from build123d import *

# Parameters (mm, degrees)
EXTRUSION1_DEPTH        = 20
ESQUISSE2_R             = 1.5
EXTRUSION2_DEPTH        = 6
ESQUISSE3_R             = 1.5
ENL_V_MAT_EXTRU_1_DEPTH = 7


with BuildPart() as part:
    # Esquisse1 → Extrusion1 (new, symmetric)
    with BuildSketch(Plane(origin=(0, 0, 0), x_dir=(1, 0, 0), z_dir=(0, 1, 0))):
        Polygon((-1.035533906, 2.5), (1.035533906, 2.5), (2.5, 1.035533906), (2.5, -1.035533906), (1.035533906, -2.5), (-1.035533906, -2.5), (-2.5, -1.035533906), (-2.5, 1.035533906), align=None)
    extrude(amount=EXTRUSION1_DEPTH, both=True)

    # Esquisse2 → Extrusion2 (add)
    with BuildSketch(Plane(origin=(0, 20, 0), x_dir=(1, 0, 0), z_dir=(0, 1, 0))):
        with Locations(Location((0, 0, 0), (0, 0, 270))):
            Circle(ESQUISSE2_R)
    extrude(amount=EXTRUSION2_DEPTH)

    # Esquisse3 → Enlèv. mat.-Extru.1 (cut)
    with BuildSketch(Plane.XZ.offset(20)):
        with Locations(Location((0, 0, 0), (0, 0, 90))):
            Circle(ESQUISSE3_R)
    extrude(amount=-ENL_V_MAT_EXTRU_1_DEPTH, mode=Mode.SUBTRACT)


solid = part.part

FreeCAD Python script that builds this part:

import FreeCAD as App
import Part
import Sketcher
from FreeCAD import Vector
Q = App.Units.Quantity

doc = App.newDocument("Part")
body = doc.addObject("PartDesign::Body", "Body")

# Sketch on XZ plane
sketch1 = body.newObject("Sketcher::SketchObject", "Sketch")
sketch1.AttachmentSupport = (doc.getObject("XZ_Plane"), [""])
sketch1.MapMode = "FlatFace"
sketch1.addGeometry(Part.LineSegment(Vector(1, -2.5, 0), Vector(-1, -2.5, 0)), False)
sketch1.addGeometry(Part.LineSegment(Vector(-1, -2.5, 0), Vector(-2.5, -1, 0)), False)
sketch1.addGeometry(Part.LineSegment(Vector(-2.5, -1, 0), Vector(-2.5, 1, 0)), False)
sketch1.addGeometry(Part.LineSegment(Vector(-2.5, 1, 0), Vector(-1, 2.5, 0)), False)
sketch1.addGeometry(Part.LineSegment(Vector(-1, 2.5, 0), Vector(1, 2.5, 0)), False)
sketch1.addGeometry(Part.LineSegment(Vector(1, 2.5, 0), Vector(2.5, 1, 0)), False)
sketch1.addGeometry(Part.LineSegment(Vector(2.5, 1, 0), Vector(2.5, -1, 0)), False)
sketch1.addGeometry(Part.LineSegment(Vector(2.5, -1, 0), Vector(1, -2.5, 0)), False)
sketch1.addConstraint(Sketcher.Constraint("Coincident", 0, 2, 1, 1))
sketch1.addConstraint(Sketcher.Constraint("Coincident", 1, 2, 2, 1))
sketch1.addConstraint(Sketcher.Constraint("Coincident", 2, 2, 3, 1))
sketch1.addConstraint(Sketcher.Constraint("Coincident", 3, 2, 4, 1))
sketch1.addConstraint(Sketcher.Constraint("Coincident", 4, 2, 5, 1))
sketch1.addConstraint(Sketcher.Constraint("Coincident", 5, 2, 6, 1))
sketch1.addConstraint(Sketcher.Constraint("Coincident", 6, 2, 7, 1))
sketch1.addConstraint(Sketcher.Constraint("Coincident", 7, 2, 0, 1))
sketch1.addConstraint(Sketcher.Constraint("Horizontal", 0))
sketch1.addConstraint(Sketcher.Constraint("Vertical", 2))
sketch1.addConstraint(Sketcher.Constraint("Horizontal", 4))
sketch1.addConstraint(Sketcher.Constraint("Vertical", 6))
sketch1.addConstraint(Sketcher.Constraint("Symmetric", 0, 2, 4, 2, -1, 1))
sketch1.addConstraint(Sketcher.Constraint("Symmetric", 1, 2, 5, 2, -1, 1))
sketch1.addConstraint(Sketcher.Constraint("Perpendicular", 1, 3))
sketch1.addConstraint(Sketcher.Constraint("Perpendicular", 5, 7))
sketch1.addConstraint(Sketcher.Constraint("Horizontal", 2, 2, 5, 2))
sketch1.addConstraint(Sketcher.Constraint("Horizontal", 1, 2, 6, 2))
sketch1.addConstraint(Sketcher.Constraint("Vertical", 0, 2, 3, 2))
sketch1.addConstraint(Sketcher.Constraint("Equal", 4, 2))
sketch1.addConstraint(Sketcher.Constraint("DistanceY", 0, 2, 3, 2, Q("5 mm")))
sketch1.addConstraint(Sketcher.Constraint("DistanceX", 0, 2, 0, 1, Q("2.071068 mm")))
pad1 = body.newObject("PartDesign::Pad", "Pad")
pad1.Profile = sketch1
pad1.Length = 40
pad1.Midplane = True

# Sketch on XZ plane
sketch2 = body.newObject("Sketcher::SketchObject", "Sketch001")
sketch2.AttachmentSupport = (doc.getObject("XZ_Plane"), [""])
sketch2.MapMode = "FlatFace"
sketch2.AttachmentOffset = App.Placement(Vector(0, 0, -20), App.Rotation())
sketch2.addGeometry(Part.Circle(Vector(0, 0, 0), Vector(0, 0, 1), 1.5), False)
sketch2.addConstraint(Sketcher.Constraint("Coincident", 0, 3, -1, 1))
sketch2.addConstraint(Sketcher.Constraint("Diameter", 0, Q("3 mm")))
pad2 = body.newObject("PartDesign::Pad", "Pad001")
pad2.Profile = sketch2
pad2.Length = 6
pad2.Reversed = True

# Sketch on XZ plane
sketch3 = body.newObject("Sketcher::SketchObject", "Sketch002")
sketch3.AttachmentSupport = (doc.getObject("XZ_Plane"), [""])
sketch3.MapMode = "FlatFace"
sketch3.AttachmentOffset = App.Placement(Vector(0, 0, 20), App.Rotation())
sketch3.addGeometry(Part.Circle(Vector(0, 0, 0), Vector(0, 0, 1), 1.5), False)
sketch3.addConstraint(Sketcher.Constraint("Coincident", 0, 3, -1, 1))
sketch3.addConstraint(Sketcher.Constraint("Diameter", 0, Q("3 mm")))
pocket1 = body.newObject("PartDesign::Pocket", "Pocket")
pocket1.Profile = sketch3
pocket1.Length = 7

doc.recompute()
